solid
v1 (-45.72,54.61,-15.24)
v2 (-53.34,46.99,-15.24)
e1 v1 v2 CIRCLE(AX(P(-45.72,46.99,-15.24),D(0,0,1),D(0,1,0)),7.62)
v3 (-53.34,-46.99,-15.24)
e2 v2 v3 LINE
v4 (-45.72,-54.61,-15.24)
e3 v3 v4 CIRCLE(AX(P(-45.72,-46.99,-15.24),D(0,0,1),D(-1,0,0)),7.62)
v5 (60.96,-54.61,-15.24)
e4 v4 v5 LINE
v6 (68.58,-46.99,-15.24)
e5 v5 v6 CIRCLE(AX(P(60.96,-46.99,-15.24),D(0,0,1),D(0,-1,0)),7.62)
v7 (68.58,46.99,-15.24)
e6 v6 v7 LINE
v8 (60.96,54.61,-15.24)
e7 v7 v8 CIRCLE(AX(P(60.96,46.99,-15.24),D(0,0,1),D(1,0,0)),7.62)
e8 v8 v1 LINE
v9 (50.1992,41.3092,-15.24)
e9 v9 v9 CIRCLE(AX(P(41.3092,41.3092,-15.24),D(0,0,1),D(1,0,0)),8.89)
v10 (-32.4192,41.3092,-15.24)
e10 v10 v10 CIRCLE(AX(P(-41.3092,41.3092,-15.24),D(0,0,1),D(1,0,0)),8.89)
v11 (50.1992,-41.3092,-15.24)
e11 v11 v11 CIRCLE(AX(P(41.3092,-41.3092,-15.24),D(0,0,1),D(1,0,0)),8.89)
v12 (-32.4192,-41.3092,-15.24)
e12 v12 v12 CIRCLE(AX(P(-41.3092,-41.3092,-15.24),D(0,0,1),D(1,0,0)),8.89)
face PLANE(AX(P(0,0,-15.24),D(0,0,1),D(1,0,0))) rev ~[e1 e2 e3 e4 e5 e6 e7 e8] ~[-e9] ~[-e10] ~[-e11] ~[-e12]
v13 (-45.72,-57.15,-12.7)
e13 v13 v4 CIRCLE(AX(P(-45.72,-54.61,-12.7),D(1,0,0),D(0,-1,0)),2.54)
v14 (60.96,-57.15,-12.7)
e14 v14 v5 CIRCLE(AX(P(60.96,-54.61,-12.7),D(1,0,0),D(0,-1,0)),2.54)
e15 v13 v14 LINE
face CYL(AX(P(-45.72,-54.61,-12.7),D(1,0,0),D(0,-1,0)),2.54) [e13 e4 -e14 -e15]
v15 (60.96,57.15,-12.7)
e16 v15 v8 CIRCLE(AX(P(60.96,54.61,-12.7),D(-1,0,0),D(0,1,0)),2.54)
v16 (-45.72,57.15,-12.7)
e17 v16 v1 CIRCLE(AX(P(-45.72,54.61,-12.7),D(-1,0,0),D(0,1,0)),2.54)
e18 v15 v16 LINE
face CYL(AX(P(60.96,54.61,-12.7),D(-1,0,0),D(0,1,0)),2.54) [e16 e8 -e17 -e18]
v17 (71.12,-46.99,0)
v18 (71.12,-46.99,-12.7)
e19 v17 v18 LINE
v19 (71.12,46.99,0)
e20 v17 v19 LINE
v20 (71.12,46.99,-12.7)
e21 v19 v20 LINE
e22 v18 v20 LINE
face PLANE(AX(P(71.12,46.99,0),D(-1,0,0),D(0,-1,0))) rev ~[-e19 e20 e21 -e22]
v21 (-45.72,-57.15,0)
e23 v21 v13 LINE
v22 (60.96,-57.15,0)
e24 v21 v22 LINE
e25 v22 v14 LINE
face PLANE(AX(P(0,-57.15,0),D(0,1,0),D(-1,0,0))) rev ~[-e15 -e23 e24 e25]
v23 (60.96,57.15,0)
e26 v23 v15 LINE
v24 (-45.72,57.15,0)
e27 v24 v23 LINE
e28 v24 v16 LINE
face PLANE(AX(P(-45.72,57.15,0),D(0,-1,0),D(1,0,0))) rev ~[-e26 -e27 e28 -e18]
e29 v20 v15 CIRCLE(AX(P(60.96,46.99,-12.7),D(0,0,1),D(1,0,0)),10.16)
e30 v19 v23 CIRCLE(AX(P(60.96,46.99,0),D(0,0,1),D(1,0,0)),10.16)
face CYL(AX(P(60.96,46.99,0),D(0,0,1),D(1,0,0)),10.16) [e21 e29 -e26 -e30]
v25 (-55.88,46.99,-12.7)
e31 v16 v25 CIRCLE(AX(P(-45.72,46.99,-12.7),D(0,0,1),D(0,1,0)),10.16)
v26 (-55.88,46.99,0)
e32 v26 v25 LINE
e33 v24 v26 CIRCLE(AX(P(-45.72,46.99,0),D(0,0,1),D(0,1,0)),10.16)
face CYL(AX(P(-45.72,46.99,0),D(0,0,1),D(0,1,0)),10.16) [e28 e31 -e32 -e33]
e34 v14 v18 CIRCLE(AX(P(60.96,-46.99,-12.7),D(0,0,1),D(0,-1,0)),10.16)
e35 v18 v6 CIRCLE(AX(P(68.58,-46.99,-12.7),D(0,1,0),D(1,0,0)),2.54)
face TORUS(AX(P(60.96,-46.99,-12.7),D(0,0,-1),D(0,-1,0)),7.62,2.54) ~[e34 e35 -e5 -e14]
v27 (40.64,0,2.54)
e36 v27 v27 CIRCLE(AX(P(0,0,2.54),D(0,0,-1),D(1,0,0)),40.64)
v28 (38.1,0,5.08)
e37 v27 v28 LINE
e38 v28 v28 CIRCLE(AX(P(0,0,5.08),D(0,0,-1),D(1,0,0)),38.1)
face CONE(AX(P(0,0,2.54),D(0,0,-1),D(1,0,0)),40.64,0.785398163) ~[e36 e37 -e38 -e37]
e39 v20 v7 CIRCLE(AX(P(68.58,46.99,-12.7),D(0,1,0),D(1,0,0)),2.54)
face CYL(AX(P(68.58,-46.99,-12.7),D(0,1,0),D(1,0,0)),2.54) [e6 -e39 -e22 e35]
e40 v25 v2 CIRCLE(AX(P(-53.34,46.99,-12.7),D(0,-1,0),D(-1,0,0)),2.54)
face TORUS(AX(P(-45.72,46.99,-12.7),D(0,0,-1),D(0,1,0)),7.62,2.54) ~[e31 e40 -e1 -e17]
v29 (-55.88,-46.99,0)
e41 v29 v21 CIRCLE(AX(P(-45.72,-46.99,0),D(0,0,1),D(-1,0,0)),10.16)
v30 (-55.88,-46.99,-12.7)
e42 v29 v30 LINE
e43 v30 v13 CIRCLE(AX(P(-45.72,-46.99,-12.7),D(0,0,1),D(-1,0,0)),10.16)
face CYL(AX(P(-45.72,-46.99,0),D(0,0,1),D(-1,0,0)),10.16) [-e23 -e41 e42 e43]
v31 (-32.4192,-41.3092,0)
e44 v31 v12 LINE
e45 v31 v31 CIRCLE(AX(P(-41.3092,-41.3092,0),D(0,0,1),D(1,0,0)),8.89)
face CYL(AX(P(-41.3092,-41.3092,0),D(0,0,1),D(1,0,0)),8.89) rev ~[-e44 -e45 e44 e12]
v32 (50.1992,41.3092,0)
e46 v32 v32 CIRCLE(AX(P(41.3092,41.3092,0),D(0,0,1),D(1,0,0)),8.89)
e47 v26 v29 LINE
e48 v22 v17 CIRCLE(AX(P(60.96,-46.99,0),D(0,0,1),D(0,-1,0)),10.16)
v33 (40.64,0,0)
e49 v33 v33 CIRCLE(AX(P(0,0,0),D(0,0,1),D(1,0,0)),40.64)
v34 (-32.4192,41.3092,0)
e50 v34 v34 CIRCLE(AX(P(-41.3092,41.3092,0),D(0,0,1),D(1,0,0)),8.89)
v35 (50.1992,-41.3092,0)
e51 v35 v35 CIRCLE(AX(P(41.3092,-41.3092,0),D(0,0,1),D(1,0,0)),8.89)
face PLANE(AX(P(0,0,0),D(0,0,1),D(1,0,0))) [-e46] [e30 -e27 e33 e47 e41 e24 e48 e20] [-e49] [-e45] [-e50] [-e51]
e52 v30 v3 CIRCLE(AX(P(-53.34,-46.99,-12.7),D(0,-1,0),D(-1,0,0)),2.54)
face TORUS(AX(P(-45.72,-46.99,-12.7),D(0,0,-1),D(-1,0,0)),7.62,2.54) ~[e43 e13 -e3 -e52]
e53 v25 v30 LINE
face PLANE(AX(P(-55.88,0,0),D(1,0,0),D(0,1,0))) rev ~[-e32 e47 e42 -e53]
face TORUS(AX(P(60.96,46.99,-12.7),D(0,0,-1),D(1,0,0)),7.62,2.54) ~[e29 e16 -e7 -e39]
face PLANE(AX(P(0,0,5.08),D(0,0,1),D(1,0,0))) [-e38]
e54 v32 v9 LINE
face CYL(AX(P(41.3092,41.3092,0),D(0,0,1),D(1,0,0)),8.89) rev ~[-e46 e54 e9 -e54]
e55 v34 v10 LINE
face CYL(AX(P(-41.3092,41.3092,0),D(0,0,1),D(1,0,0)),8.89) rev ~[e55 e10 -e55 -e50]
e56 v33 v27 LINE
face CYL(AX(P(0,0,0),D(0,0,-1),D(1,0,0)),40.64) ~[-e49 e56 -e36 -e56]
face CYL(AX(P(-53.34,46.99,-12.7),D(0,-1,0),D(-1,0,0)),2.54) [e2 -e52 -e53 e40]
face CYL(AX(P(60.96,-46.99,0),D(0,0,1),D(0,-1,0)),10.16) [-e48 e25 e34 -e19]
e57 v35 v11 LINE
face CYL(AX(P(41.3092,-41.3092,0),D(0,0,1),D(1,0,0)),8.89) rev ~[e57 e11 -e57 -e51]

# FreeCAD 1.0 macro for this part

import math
import FreeCAD as App
import Part
import Sketcher

V = App.Vector
Q = App.Units.Quantity


def edges_at(feature, points):
    """Names of the edges that pass closest to the given points."""
    edges = feature.Shape.Edges
    near = lambda p: min(range(len(edges)), key=lambda i: edges[i].distToShape(Part.Vertex(*p))[0])
    return sorted({f"Edge{near(p) + 1}" for p in points})

doc = App.newDocument("Part")
params = doc.addObject("Spreadsheet::Sheet", "Params")
for row, (alias, value) in enumerate([
    ("sketch1_diameter", "0.7 in"),
    ("sketch1_radius", "0.4 in"),
    ("sketch1_width", "4.2 in"),
    ("sketch1_height", "3.7 in"),
    ("pad1_length", "0.6 in"),
    ("sketch2_diameter", "3.2 in"),
    ("pad2_length", "0.2 in"),
    ("chamfer_size", "0.1 in"),
    ("fillet_radius", "0.1 in"),
], start=1):
    params.set(f"A{row}", alias)
    params.set(f"B{row}", "=" + value)
    params.setAlias(f"B{row}", alias)

body = doc.addObject("PartDesign::Body", "Body")

sketch1 = body.newObject("Sketcher::SketchObject", "Sketch")
sketch1.AttachmentSupport = (doc.getObject("XY_Plane"), [""])
sketch1.MapMode = "FlatFace"
sketch1.addGeometry([
    Part.ArcOfCircle(Part.Circle(V(-46, 47, 0), V(0, 0, 1), 10), math.radians(90), math.radians(180)),
    Part.LineSegment(V(-56, 47, 0), V(-56, -47, 0)),
    Part.ArcOfCircle(Part.Circle(V(-46, -47, 0), V(0, 0, 1), 10), math.radians(180), math.radians(270)),
    Part.LineSegment(V(-46, -57, 0), V(61, -57, 0)),
    Part.ArcOfCircle(Part.Circle(V(61, -47, 0), V(0, 0, 1), 10), math.radians(-90), math.radians(0)),
    Part.LineSegment(V(71, -47, 0), V(71, 47, 0)),
    Part.ArcOfCircle(Part.Circle(V(61, 47, 0), V(0, 0, 1), 10), math.radians(0), math.radians(90)),
    Part.LineSegment(V(61, 57, 0), V(-46, 57, 0)),
    Part.Circle(V(-41, 41, 0), V(0, 0, 1), 9),
    Part.Circle(V(41, 41, 0), V(0, 0, 1), 9),
    Part.Circle(V(-41, -41, 0), V(0, 0, 1), 9),
    Part.Circle(V(41, -41, 0), V(0, 0, 1), 9),
], False)
sketch1.addConstraint([
    Sketcher.Constraint("Tangent", 0, 2, 1, 1),
    Sketcher.Constraint("Tangent", 1, 2, 2, 1),
    Sketcher.Constraint("Tangent", 2, 2, 3, 1),
    Sketcher.Constraint("Tangent", 3, 2, 4, 1),
    Sketcher.Constraint("Tangent", 4, 2, 5, 1),
    Sketcher.Constraint("Tangent", 5, 2, 6, 1),
    Sketcher.Constraint("Tangent", 6, 2, 7, 1),
    Sketcher.Constraint("Tangent", 7, 2, 0, 1),
    Sketcher.Constraint("Vertical", 1),
    Sketcher.Constraint("Horizontal", 3),
    Sketcher.Constraint("Vertical", 5),
    Sketcher.Constraint("Horizontal", 7),
    Sketcher.Constraint("Equal", 0, 2),
    Sketcher.Constraint("Equal", 2, 4),
    Sketcher.Constraint("Equal", 4, 6),
    Sketcher.Constraint("Equal", 8, 9),
    Sketcher.Constraint("Equal", 9, 10),
    Sketcher.Constraint("Equal", 10, 11),
    Sketcher.Constraint("Symmetric", 9, 3, 10, 3, -1, 1),
    Sketcher.Constraint("Symmetric", 8, 3, 11, 3, -1, 1),
    Sketcher.Constraint("Symmetric", 8, 3, 9, 3, -2),
    Sketcher.Constraint("Diameter", 8, Q("0.7 in")),
    Sketcher.Constraint("Radius", 0, Q("0.4 in")),
    Sketcher.Constraint("DistanceX", 0, 2, -1, 1, Q("2.2 in")),
    Sketcher.Constraint("DistanceX", 3, 1, 3, 2, Q("4.2 in")),
    Sketcher.Constraint("DistanceY", 1, 2, 1, 1, Q("3.7 in")),
    Sketcher.Constraint("DistanceY", -1, 1, 0, 3, Q("1.85 in")),
    Sketcher.Constraint("DistanceX", 8, 3, 9, 3, Q("3.2527 in")),
    Sketcher.Constraint("DistanceY", 10, 3, 8, 3, Q("3.2527 in")),
])
sketch1.setExpression("Constraints[21]", "Params.sketch1_diameter")
sketch1.setExpression("Constraints[22]", "Params.sketch1_radius")
sketch1.setExpression("Constraints[24]", "Params.sketch1_width")
sketch1.setExpression("Constraints[25]", "Params.sketch1_height")
pad1 = body.newObject("PartDesign::Pad", "Pad")
pad1.Profile = sketch1
pad1.setExpression("Length", "Params.pad1_length")
pad1.Reversed = True

sketch2 = body.newObject("Sketcher::SketchObject", "Sketch001")
sketch2.AttachmentSupport = (doc.getObject("XY_Plane"), [""])
sketch2.MapMode = "FlatFace"
sketch2.addGeometry(Part.Circle(V(0, 0, 0), V(0, 0, 1), 41), False)
sketch2.addConstraint([
    Sketcher.Constraint("Coincident", 0, 3, -1, 1),
    Sketcher.Constraint("Diameter", 0, Q("3.2 in")),
])
sketch2.setExpression("Constraints[1]", "Params.sketch2_diameter")
pad2 = body.newObject("PartDesign::Pad", "Pad001")
pad2.Profile = sketch2
pad2.setExpression("Length", "Params.pad2_length")
doc.recompute()

chamfer = body.newObject("PartDesign::Chamfer", "Chamfer")
chamfer.Base = (pad2, edges_at(pad2, [(-40.64, 0, 5.08)]))
chamfer.setExpression("Size", "Params.chamfer_size")
doc.recompute()

fillet = body.newObject("PartDesign::Fillet", "Fillet")
fillet.Base = (chamfer, edges_at(chamfer, [
    (68.144, 54.174, -15.24),
    (71.12, 0, -15.24),
    (68.144, -54.174, -15.24),
    (7.62, -57.15, -15.24),
    (-52.904, -54.174, -15.24),
    (-55.88, 0, -15.24),
    (-52.904, 54.174, -15.24),
    (7.62, 57.15, -15.24),
]))
fillet.setExpression("Radius", "Params.fillet_radius")

doc.recompute()
